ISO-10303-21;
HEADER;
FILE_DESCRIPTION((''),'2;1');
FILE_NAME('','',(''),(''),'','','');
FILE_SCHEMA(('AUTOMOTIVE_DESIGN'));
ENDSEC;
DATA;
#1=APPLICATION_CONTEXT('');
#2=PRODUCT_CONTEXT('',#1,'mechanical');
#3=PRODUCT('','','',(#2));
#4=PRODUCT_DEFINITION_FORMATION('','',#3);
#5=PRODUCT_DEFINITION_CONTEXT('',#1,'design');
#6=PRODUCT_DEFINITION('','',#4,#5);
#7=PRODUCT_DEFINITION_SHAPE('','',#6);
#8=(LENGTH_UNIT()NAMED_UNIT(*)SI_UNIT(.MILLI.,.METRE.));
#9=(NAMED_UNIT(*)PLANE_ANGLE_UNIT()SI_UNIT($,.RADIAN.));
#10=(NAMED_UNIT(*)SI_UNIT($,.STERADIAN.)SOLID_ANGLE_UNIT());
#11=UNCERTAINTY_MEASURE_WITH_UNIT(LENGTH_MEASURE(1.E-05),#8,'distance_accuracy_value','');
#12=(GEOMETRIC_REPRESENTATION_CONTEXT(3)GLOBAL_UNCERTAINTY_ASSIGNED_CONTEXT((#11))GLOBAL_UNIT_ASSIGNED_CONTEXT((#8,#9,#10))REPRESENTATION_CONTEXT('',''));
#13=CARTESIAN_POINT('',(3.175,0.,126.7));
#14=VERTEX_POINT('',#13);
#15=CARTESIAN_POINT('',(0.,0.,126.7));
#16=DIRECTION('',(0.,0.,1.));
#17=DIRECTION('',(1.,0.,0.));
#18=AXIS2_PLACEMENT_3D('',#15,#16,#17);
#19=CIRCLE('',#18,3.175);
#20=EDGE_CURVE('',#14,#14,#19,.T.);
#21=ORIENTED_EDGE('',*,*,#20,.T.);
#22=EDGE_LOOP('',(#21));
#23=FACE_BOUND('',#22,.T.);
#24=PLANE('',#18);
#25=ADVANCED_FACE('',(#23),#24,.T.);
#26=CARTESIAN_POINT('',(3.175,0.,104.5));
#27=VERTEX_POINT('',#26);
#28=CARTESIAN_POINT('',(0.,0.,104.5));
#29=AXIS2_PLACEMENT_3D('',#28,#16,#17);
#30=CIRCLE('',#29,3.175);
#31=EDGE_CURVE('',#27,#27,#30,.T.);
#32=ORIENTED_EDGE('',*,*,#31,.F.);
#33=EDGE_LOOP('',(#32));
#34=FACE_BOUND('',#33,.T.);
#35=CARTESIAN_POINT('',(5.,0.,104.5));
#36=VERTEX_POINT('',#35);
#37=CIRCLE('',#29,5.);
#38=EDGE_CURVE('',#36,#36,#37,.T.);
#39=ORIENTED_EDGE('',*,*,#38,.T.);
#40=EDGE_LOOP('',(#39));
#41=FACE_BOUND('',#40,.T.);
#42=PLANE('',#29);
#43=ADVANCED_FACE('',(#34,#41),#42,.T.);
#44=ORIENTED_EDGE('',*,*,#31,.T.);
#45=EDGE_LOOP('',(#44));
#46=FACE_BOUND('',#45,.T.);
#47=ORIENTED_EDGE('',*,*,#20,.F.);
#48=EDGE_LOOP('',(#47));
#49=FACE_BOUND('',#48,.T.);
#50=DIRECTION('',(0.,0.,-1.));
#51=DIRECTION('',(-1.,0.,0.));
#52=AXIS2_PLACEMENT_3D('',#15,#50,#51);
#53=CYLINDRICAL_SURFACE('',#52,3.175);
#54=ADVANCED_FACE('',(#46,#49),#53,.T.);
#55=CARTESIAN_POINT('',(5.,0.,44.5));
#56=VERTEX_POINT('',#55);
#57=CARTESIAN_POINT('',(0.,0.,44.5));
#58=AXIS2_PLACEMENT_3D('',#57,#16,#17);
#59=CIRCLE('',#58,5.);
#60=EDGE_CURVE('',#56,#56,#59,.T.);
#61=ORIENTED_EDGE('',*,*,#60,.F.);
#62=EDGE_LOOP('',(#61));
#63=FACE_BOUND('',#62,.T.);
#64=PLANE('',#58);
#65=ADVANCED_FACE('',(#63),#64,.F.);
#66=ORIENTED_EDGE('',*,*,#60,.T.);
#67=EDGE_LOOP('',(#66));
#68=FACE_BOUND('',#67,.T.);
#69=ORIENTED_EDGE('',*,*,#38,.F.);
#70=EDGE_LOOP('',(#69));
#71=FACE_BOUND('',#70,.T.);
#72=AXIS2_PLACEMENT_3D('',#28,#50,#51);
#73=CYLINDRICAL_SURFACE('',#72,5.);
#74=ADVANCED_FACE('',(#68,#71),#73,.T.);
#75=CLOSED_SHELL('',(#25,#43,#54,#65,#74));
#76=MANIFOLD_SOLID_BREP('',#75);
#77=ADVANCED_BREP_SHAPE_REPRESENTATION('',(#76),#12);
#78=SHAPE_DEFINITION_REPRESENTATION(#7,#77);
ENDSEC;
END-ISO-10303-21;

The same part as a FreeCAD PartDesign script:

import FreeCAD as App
import Part
import Sketcher
from FreeCAD import Vector

doc = App.newDocument("Part")
body = doc.addObject("PartDesign::Body", "Body")

# Sketch on XY plane
sketch1 = body.newObject("Sketcher::SketchObject", "Sketch")
sketch1.AttachmentSupport = (doc.getObject("XY_Plane"), [""])
sketch1.MapMode = "FlatFace"
sketch1.AttachmentOffset = App.Placement(Vector(0, 0, 44.5), App.Rotation())
sketch1.addGeometry(Part.Circle(Vector(0, 0, 0), Vector(0, 0, 1), 5), False)
sketch1.addConstraint([
    Sketcher.Constraint("Coincident", 0, 3, -1, 1),
    Sketcher.Constraint("Diameter", 0, 10.0),
])
pad1 = body.newObject("PartDesign::Pad", "Pad")
pad1.Profile = sketch1
pad1.Length = 60

# Sketch on XY plane
sketch2 = body.newObject("Sketcher::SketchObject", "Sketch001")
sketch2.AttachmentSupport = (doc.getObject("XY_Plane"), [""])
sketch2.MapMode = "FlatFace"
sketch2.AttachmentOffset = App.Placement(Vector(0, 0, 104.5), App.Rotation())
sketch2.addGeometry(Part.Circle(Vector(0, 0, 0), Vector(0, 0, 1), 3.2), False)
sketch2.addConstraint([
    Sketcher.Constraint("Coincident", 0, 3, -1, 1),
    Sketcher.Constraint("Diameter", 0, 6.35),
])
pad2 = body.newObject("PartDesign::Pad", "Pad001")
pad2.Profile = sketch2
pad2.Length = 22.2

doc.recompute()
